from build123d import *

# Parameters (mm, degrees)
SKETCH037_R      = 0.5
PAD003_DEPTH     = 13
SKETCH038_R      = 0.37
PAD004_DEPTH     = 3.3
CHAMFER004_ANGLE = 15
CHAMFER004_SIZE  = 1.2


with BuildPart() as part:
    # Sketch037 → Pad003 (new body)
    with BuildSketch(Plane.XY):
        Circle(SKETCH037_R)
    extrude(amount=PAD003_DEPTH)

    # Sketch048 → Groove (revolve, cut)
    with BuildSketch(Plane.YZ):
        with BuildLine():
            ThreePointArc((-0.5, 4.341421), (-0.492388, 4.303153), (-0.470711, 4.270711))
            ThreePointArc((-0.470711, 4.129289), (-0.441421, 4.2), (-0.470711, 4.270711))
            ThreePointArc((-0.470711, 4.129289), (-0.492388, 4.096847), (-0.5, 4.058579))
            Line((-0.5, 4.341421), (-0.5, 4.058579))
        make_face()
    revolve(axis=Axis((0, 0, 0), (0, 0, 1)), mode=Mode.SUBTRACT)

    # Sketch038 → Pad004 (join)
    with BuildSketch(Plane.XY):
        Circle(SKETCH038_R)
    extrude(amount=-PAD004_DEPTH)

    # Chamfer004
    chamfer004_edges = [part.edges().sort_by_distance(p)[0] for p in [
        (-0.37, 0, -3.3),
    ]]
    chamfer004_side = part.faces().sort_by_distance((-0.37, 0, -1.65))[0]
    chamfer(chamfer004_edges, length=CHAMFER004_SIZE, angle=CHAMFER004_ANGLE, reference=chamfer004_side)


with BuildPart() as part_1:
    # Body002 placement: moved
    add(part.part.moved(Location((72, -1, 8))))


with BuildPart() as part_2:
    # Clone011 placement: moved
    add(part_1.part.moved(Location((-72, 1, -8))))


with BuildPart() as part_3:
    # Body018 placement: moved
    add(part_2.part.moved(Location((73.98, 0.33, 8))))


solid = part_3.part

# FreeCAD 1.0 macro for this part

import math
import FreeCAD as App
import Part
import Sketcher

V = App.Vector


def edges_at(feature, points):
    """Names of the edges that pass closest to the given points."""
    edges = feature.Shape.Edges
    near = lambda p: min(range(len(edges)), key=lambda i: edges[i].distToShape(Part.Vertex(*p))[0])
    return sorted({f"Edge{near(p) + 1}" for p in points})

doc = App.newDocument("Part")
params = doc.addObject("Spreadsheet::Sheet", "Params")
for row, (alias, value) in enumerate([
    ("sketch1_diameter", "1 mm"),
    ("pad1_length", "13 mm"),
    ("sketch2_radius", "0.099999 mm"),
    ("groove_angle", "360 deg"),
    ("sketch3_diameter", "0.74 mm"),
    ("pad2_length", "3.3 mm"),
    ("chamfer_size", "1.2 mm"),
], start=1):
    params.set(f"A{row}", alias)
    params.set(f"B{row}", "=" + value)
    params.setAlias(f"B{row}", alias)

body = doc.addObject("PartDesign::Body", "Body")

# Sketch on XY plane
sketch1 = body.newObject("Sketcher::SketchObject", "Sketch")
sketch1.AttachmentSupport = (doc.getObject("XY_Plane"), [""])
sketch1.MapMode = "FlatFace"
sketch1.addGeometry(Part.Circle(V(0, 0, 0), V(0, 0, 1), 0.5), False)
sketch1.addConstraint(Sketcher.Constraint("Coincident", 0, 3, -1, 1))
sketch1.addConstraint(Sketcher.Constraint("Diameter", 0, 1.0))
sketch1.setExpression("Constraints[1]", "Params.sketch1_diameter")
pad1 = body.newObject("PartDesign::Pad", "Pad")
pad1.Profile = sketch1
pad1.setExpression("Length", "Params.pad1_length")

# Sketch on YZ plane
sketch2 = body.newObject("Sketcher::SketchObject", "Sketch001")
sketch2.AttachmentSupport = (doc.getObject("YZ_Plane"), [""])
sketch2.MapMode = "FlatFace"
sketch2.addGeometry(Part.ArcOfCircle(Part.Circle(V(-0.400001, 4.341421, 0), V(0, 0, 1), 0.099999), math.radians(-179.999935), math.radians(-135.000122)), False)
sketch2.addGeometry(Part.LineSegment(V(-0.5, 4.341421, 0), V(-0.5, 4.058579, 0)), False)
sketch2.addGeometry(Part.ArcOfCircle(Part.Circle(V(-0.400001, 4.058579, 0), V(0, 0, 1), 0.099999), math.radians(135.000122), math.radians(179.999935)), False)
sketch2.addGeometry(Part.ArcOfCircle(Part.Circle(V(-0.54142, 4.2, 0), V(0, 0, 1), 0.099999), math.radians(-45.000754), math.radians(45.000754)), False)
sketch2.addConstraint(Sketcher.Constraint("Tangent", 0, 1, 1, 1))
sketch2.addConstraint(Sketcher.Constraint("Tangent", 1, 2, 2, 2))
sketch2.addConstraint(Sketcher.Constraint("Coincident", 2, 1, 3, 1))
sketch2.addConstraint(Sketcher.Constraint("Coincident", 3, 2, 0, 2))
sketch2.addConstraint(Sketcher.Constraint("Vertical", 1))
sketch2.addConstraint(Sketcher.Constraint("Equal", 0, 2))
sketch2.addConstraint(Sketcher.Constraint("Equal", 2, 3))
sketch2.addConstraint(Sketcher.Constraint("Vertical", 2, 1, 3, 2))
sketch2.addConstraint(Sketcher.Constraint("Radius", 0, 0.099999))
sketch2.addConstraint(Sketcher.Constraint("DistanceX", 0, 3, -1, 1, 0.400001))
sketch2.addConstraint(Sketcher.Constraint("DistanceY", -1, 1, 3, 3, 4.2))
sketch2.addConstraint(Sketcher.Constraint("DistanceY", 1, 2, 1, 1, 0.282842))
sketch2.addConstraint(Sketcher.Constraint("DistanceX", 2, 1, -1, 1, 0.470711))
sketch2.setExpression("Constraints[8]", "Params.sketch2_radius")
groove = body.newObject("PartDesign::Groove", "Groove")
groove.Profile = sketch2
groove.ReferenceAxis = (sketch2, ["V_Axis"])
groove.setExpression("Angle", "Params.groove_angle")

# Sketch on XY plane
sketch3 = body.newObject("Sketcher::SketchObject", "Sketch002")
sketch3.AttachmentSupport = (doc.getObject("XY_Plane"), [""])
sketch3.MapMode = "FlatFace"
sketch3.addGeometry(Part.Circle(V(0, 0, 0), V(0, 0, 1), 0.37), False)
sketch3.addConstraint(Sketcher.Constraint("Coincident", 0, 3, -1, 1))
sketch3.addConstraint(Sketcher.Constraint("Diameter", 0, 0.74))
sketch3.setExpression("Constraints[1]", "Params.sketch3_diameter")
pad2 = body.newObject("PartDesign::Pad", "Pad001")
pad2.Profile = sketch3
pad2.setExpression("Length", "Params.pad2_length")
pad2.Reversed = True
doc.recompute()

chamfer = body.newObject("PartDesign::Chamfer", "Chamfer")
chamfer.Base = (pad2, edges_at(pad2, [(-0.37, 0, -3.3)]))
chamfer.ChamferType = "Distance and Angle"
chamfer.setExpression("Size", "Params.chamfer_size")
chamfer.Angle = 15
body2 = doc.addObject("PartDesign::Body", "Body001")
doc.recompute()

body.Placement = App.Placement(V(72, -1, 8), App.Rotation(V(0, 0, 1), 0))
boolean = body2.newObject("PartDesign::Boolean", "Boolean")
boolean.Type = "Fuse"
boolean.addObjects([body])
body3 = doc.addObject("PartDesign::Body", "Body002")
doc.recompute()

body2.Placement = App.Placement(V(-72, 1, -8), App.Rotation(V(0, 0, 1), 0))
boolean2 = body3.newObject("PartDesign::Boolean", "Boolean001")
boolean2.Type = "Fuse"
boolean2.addObjects([body2])
body4 = doc.addObject("PartDesign::Body", "Body003")
doc.recompute()

body3.Placement = App.Placement(V(73.98, 0.33, 8), App.Rotation(V(0, 0, 1), 0))
boolean3 = body4.newObject("PartDesign::Boolean", "Boolean002")
boolean3.Type = "Fuse"
boolean3.addObjects([body3])

doc.recompute()
